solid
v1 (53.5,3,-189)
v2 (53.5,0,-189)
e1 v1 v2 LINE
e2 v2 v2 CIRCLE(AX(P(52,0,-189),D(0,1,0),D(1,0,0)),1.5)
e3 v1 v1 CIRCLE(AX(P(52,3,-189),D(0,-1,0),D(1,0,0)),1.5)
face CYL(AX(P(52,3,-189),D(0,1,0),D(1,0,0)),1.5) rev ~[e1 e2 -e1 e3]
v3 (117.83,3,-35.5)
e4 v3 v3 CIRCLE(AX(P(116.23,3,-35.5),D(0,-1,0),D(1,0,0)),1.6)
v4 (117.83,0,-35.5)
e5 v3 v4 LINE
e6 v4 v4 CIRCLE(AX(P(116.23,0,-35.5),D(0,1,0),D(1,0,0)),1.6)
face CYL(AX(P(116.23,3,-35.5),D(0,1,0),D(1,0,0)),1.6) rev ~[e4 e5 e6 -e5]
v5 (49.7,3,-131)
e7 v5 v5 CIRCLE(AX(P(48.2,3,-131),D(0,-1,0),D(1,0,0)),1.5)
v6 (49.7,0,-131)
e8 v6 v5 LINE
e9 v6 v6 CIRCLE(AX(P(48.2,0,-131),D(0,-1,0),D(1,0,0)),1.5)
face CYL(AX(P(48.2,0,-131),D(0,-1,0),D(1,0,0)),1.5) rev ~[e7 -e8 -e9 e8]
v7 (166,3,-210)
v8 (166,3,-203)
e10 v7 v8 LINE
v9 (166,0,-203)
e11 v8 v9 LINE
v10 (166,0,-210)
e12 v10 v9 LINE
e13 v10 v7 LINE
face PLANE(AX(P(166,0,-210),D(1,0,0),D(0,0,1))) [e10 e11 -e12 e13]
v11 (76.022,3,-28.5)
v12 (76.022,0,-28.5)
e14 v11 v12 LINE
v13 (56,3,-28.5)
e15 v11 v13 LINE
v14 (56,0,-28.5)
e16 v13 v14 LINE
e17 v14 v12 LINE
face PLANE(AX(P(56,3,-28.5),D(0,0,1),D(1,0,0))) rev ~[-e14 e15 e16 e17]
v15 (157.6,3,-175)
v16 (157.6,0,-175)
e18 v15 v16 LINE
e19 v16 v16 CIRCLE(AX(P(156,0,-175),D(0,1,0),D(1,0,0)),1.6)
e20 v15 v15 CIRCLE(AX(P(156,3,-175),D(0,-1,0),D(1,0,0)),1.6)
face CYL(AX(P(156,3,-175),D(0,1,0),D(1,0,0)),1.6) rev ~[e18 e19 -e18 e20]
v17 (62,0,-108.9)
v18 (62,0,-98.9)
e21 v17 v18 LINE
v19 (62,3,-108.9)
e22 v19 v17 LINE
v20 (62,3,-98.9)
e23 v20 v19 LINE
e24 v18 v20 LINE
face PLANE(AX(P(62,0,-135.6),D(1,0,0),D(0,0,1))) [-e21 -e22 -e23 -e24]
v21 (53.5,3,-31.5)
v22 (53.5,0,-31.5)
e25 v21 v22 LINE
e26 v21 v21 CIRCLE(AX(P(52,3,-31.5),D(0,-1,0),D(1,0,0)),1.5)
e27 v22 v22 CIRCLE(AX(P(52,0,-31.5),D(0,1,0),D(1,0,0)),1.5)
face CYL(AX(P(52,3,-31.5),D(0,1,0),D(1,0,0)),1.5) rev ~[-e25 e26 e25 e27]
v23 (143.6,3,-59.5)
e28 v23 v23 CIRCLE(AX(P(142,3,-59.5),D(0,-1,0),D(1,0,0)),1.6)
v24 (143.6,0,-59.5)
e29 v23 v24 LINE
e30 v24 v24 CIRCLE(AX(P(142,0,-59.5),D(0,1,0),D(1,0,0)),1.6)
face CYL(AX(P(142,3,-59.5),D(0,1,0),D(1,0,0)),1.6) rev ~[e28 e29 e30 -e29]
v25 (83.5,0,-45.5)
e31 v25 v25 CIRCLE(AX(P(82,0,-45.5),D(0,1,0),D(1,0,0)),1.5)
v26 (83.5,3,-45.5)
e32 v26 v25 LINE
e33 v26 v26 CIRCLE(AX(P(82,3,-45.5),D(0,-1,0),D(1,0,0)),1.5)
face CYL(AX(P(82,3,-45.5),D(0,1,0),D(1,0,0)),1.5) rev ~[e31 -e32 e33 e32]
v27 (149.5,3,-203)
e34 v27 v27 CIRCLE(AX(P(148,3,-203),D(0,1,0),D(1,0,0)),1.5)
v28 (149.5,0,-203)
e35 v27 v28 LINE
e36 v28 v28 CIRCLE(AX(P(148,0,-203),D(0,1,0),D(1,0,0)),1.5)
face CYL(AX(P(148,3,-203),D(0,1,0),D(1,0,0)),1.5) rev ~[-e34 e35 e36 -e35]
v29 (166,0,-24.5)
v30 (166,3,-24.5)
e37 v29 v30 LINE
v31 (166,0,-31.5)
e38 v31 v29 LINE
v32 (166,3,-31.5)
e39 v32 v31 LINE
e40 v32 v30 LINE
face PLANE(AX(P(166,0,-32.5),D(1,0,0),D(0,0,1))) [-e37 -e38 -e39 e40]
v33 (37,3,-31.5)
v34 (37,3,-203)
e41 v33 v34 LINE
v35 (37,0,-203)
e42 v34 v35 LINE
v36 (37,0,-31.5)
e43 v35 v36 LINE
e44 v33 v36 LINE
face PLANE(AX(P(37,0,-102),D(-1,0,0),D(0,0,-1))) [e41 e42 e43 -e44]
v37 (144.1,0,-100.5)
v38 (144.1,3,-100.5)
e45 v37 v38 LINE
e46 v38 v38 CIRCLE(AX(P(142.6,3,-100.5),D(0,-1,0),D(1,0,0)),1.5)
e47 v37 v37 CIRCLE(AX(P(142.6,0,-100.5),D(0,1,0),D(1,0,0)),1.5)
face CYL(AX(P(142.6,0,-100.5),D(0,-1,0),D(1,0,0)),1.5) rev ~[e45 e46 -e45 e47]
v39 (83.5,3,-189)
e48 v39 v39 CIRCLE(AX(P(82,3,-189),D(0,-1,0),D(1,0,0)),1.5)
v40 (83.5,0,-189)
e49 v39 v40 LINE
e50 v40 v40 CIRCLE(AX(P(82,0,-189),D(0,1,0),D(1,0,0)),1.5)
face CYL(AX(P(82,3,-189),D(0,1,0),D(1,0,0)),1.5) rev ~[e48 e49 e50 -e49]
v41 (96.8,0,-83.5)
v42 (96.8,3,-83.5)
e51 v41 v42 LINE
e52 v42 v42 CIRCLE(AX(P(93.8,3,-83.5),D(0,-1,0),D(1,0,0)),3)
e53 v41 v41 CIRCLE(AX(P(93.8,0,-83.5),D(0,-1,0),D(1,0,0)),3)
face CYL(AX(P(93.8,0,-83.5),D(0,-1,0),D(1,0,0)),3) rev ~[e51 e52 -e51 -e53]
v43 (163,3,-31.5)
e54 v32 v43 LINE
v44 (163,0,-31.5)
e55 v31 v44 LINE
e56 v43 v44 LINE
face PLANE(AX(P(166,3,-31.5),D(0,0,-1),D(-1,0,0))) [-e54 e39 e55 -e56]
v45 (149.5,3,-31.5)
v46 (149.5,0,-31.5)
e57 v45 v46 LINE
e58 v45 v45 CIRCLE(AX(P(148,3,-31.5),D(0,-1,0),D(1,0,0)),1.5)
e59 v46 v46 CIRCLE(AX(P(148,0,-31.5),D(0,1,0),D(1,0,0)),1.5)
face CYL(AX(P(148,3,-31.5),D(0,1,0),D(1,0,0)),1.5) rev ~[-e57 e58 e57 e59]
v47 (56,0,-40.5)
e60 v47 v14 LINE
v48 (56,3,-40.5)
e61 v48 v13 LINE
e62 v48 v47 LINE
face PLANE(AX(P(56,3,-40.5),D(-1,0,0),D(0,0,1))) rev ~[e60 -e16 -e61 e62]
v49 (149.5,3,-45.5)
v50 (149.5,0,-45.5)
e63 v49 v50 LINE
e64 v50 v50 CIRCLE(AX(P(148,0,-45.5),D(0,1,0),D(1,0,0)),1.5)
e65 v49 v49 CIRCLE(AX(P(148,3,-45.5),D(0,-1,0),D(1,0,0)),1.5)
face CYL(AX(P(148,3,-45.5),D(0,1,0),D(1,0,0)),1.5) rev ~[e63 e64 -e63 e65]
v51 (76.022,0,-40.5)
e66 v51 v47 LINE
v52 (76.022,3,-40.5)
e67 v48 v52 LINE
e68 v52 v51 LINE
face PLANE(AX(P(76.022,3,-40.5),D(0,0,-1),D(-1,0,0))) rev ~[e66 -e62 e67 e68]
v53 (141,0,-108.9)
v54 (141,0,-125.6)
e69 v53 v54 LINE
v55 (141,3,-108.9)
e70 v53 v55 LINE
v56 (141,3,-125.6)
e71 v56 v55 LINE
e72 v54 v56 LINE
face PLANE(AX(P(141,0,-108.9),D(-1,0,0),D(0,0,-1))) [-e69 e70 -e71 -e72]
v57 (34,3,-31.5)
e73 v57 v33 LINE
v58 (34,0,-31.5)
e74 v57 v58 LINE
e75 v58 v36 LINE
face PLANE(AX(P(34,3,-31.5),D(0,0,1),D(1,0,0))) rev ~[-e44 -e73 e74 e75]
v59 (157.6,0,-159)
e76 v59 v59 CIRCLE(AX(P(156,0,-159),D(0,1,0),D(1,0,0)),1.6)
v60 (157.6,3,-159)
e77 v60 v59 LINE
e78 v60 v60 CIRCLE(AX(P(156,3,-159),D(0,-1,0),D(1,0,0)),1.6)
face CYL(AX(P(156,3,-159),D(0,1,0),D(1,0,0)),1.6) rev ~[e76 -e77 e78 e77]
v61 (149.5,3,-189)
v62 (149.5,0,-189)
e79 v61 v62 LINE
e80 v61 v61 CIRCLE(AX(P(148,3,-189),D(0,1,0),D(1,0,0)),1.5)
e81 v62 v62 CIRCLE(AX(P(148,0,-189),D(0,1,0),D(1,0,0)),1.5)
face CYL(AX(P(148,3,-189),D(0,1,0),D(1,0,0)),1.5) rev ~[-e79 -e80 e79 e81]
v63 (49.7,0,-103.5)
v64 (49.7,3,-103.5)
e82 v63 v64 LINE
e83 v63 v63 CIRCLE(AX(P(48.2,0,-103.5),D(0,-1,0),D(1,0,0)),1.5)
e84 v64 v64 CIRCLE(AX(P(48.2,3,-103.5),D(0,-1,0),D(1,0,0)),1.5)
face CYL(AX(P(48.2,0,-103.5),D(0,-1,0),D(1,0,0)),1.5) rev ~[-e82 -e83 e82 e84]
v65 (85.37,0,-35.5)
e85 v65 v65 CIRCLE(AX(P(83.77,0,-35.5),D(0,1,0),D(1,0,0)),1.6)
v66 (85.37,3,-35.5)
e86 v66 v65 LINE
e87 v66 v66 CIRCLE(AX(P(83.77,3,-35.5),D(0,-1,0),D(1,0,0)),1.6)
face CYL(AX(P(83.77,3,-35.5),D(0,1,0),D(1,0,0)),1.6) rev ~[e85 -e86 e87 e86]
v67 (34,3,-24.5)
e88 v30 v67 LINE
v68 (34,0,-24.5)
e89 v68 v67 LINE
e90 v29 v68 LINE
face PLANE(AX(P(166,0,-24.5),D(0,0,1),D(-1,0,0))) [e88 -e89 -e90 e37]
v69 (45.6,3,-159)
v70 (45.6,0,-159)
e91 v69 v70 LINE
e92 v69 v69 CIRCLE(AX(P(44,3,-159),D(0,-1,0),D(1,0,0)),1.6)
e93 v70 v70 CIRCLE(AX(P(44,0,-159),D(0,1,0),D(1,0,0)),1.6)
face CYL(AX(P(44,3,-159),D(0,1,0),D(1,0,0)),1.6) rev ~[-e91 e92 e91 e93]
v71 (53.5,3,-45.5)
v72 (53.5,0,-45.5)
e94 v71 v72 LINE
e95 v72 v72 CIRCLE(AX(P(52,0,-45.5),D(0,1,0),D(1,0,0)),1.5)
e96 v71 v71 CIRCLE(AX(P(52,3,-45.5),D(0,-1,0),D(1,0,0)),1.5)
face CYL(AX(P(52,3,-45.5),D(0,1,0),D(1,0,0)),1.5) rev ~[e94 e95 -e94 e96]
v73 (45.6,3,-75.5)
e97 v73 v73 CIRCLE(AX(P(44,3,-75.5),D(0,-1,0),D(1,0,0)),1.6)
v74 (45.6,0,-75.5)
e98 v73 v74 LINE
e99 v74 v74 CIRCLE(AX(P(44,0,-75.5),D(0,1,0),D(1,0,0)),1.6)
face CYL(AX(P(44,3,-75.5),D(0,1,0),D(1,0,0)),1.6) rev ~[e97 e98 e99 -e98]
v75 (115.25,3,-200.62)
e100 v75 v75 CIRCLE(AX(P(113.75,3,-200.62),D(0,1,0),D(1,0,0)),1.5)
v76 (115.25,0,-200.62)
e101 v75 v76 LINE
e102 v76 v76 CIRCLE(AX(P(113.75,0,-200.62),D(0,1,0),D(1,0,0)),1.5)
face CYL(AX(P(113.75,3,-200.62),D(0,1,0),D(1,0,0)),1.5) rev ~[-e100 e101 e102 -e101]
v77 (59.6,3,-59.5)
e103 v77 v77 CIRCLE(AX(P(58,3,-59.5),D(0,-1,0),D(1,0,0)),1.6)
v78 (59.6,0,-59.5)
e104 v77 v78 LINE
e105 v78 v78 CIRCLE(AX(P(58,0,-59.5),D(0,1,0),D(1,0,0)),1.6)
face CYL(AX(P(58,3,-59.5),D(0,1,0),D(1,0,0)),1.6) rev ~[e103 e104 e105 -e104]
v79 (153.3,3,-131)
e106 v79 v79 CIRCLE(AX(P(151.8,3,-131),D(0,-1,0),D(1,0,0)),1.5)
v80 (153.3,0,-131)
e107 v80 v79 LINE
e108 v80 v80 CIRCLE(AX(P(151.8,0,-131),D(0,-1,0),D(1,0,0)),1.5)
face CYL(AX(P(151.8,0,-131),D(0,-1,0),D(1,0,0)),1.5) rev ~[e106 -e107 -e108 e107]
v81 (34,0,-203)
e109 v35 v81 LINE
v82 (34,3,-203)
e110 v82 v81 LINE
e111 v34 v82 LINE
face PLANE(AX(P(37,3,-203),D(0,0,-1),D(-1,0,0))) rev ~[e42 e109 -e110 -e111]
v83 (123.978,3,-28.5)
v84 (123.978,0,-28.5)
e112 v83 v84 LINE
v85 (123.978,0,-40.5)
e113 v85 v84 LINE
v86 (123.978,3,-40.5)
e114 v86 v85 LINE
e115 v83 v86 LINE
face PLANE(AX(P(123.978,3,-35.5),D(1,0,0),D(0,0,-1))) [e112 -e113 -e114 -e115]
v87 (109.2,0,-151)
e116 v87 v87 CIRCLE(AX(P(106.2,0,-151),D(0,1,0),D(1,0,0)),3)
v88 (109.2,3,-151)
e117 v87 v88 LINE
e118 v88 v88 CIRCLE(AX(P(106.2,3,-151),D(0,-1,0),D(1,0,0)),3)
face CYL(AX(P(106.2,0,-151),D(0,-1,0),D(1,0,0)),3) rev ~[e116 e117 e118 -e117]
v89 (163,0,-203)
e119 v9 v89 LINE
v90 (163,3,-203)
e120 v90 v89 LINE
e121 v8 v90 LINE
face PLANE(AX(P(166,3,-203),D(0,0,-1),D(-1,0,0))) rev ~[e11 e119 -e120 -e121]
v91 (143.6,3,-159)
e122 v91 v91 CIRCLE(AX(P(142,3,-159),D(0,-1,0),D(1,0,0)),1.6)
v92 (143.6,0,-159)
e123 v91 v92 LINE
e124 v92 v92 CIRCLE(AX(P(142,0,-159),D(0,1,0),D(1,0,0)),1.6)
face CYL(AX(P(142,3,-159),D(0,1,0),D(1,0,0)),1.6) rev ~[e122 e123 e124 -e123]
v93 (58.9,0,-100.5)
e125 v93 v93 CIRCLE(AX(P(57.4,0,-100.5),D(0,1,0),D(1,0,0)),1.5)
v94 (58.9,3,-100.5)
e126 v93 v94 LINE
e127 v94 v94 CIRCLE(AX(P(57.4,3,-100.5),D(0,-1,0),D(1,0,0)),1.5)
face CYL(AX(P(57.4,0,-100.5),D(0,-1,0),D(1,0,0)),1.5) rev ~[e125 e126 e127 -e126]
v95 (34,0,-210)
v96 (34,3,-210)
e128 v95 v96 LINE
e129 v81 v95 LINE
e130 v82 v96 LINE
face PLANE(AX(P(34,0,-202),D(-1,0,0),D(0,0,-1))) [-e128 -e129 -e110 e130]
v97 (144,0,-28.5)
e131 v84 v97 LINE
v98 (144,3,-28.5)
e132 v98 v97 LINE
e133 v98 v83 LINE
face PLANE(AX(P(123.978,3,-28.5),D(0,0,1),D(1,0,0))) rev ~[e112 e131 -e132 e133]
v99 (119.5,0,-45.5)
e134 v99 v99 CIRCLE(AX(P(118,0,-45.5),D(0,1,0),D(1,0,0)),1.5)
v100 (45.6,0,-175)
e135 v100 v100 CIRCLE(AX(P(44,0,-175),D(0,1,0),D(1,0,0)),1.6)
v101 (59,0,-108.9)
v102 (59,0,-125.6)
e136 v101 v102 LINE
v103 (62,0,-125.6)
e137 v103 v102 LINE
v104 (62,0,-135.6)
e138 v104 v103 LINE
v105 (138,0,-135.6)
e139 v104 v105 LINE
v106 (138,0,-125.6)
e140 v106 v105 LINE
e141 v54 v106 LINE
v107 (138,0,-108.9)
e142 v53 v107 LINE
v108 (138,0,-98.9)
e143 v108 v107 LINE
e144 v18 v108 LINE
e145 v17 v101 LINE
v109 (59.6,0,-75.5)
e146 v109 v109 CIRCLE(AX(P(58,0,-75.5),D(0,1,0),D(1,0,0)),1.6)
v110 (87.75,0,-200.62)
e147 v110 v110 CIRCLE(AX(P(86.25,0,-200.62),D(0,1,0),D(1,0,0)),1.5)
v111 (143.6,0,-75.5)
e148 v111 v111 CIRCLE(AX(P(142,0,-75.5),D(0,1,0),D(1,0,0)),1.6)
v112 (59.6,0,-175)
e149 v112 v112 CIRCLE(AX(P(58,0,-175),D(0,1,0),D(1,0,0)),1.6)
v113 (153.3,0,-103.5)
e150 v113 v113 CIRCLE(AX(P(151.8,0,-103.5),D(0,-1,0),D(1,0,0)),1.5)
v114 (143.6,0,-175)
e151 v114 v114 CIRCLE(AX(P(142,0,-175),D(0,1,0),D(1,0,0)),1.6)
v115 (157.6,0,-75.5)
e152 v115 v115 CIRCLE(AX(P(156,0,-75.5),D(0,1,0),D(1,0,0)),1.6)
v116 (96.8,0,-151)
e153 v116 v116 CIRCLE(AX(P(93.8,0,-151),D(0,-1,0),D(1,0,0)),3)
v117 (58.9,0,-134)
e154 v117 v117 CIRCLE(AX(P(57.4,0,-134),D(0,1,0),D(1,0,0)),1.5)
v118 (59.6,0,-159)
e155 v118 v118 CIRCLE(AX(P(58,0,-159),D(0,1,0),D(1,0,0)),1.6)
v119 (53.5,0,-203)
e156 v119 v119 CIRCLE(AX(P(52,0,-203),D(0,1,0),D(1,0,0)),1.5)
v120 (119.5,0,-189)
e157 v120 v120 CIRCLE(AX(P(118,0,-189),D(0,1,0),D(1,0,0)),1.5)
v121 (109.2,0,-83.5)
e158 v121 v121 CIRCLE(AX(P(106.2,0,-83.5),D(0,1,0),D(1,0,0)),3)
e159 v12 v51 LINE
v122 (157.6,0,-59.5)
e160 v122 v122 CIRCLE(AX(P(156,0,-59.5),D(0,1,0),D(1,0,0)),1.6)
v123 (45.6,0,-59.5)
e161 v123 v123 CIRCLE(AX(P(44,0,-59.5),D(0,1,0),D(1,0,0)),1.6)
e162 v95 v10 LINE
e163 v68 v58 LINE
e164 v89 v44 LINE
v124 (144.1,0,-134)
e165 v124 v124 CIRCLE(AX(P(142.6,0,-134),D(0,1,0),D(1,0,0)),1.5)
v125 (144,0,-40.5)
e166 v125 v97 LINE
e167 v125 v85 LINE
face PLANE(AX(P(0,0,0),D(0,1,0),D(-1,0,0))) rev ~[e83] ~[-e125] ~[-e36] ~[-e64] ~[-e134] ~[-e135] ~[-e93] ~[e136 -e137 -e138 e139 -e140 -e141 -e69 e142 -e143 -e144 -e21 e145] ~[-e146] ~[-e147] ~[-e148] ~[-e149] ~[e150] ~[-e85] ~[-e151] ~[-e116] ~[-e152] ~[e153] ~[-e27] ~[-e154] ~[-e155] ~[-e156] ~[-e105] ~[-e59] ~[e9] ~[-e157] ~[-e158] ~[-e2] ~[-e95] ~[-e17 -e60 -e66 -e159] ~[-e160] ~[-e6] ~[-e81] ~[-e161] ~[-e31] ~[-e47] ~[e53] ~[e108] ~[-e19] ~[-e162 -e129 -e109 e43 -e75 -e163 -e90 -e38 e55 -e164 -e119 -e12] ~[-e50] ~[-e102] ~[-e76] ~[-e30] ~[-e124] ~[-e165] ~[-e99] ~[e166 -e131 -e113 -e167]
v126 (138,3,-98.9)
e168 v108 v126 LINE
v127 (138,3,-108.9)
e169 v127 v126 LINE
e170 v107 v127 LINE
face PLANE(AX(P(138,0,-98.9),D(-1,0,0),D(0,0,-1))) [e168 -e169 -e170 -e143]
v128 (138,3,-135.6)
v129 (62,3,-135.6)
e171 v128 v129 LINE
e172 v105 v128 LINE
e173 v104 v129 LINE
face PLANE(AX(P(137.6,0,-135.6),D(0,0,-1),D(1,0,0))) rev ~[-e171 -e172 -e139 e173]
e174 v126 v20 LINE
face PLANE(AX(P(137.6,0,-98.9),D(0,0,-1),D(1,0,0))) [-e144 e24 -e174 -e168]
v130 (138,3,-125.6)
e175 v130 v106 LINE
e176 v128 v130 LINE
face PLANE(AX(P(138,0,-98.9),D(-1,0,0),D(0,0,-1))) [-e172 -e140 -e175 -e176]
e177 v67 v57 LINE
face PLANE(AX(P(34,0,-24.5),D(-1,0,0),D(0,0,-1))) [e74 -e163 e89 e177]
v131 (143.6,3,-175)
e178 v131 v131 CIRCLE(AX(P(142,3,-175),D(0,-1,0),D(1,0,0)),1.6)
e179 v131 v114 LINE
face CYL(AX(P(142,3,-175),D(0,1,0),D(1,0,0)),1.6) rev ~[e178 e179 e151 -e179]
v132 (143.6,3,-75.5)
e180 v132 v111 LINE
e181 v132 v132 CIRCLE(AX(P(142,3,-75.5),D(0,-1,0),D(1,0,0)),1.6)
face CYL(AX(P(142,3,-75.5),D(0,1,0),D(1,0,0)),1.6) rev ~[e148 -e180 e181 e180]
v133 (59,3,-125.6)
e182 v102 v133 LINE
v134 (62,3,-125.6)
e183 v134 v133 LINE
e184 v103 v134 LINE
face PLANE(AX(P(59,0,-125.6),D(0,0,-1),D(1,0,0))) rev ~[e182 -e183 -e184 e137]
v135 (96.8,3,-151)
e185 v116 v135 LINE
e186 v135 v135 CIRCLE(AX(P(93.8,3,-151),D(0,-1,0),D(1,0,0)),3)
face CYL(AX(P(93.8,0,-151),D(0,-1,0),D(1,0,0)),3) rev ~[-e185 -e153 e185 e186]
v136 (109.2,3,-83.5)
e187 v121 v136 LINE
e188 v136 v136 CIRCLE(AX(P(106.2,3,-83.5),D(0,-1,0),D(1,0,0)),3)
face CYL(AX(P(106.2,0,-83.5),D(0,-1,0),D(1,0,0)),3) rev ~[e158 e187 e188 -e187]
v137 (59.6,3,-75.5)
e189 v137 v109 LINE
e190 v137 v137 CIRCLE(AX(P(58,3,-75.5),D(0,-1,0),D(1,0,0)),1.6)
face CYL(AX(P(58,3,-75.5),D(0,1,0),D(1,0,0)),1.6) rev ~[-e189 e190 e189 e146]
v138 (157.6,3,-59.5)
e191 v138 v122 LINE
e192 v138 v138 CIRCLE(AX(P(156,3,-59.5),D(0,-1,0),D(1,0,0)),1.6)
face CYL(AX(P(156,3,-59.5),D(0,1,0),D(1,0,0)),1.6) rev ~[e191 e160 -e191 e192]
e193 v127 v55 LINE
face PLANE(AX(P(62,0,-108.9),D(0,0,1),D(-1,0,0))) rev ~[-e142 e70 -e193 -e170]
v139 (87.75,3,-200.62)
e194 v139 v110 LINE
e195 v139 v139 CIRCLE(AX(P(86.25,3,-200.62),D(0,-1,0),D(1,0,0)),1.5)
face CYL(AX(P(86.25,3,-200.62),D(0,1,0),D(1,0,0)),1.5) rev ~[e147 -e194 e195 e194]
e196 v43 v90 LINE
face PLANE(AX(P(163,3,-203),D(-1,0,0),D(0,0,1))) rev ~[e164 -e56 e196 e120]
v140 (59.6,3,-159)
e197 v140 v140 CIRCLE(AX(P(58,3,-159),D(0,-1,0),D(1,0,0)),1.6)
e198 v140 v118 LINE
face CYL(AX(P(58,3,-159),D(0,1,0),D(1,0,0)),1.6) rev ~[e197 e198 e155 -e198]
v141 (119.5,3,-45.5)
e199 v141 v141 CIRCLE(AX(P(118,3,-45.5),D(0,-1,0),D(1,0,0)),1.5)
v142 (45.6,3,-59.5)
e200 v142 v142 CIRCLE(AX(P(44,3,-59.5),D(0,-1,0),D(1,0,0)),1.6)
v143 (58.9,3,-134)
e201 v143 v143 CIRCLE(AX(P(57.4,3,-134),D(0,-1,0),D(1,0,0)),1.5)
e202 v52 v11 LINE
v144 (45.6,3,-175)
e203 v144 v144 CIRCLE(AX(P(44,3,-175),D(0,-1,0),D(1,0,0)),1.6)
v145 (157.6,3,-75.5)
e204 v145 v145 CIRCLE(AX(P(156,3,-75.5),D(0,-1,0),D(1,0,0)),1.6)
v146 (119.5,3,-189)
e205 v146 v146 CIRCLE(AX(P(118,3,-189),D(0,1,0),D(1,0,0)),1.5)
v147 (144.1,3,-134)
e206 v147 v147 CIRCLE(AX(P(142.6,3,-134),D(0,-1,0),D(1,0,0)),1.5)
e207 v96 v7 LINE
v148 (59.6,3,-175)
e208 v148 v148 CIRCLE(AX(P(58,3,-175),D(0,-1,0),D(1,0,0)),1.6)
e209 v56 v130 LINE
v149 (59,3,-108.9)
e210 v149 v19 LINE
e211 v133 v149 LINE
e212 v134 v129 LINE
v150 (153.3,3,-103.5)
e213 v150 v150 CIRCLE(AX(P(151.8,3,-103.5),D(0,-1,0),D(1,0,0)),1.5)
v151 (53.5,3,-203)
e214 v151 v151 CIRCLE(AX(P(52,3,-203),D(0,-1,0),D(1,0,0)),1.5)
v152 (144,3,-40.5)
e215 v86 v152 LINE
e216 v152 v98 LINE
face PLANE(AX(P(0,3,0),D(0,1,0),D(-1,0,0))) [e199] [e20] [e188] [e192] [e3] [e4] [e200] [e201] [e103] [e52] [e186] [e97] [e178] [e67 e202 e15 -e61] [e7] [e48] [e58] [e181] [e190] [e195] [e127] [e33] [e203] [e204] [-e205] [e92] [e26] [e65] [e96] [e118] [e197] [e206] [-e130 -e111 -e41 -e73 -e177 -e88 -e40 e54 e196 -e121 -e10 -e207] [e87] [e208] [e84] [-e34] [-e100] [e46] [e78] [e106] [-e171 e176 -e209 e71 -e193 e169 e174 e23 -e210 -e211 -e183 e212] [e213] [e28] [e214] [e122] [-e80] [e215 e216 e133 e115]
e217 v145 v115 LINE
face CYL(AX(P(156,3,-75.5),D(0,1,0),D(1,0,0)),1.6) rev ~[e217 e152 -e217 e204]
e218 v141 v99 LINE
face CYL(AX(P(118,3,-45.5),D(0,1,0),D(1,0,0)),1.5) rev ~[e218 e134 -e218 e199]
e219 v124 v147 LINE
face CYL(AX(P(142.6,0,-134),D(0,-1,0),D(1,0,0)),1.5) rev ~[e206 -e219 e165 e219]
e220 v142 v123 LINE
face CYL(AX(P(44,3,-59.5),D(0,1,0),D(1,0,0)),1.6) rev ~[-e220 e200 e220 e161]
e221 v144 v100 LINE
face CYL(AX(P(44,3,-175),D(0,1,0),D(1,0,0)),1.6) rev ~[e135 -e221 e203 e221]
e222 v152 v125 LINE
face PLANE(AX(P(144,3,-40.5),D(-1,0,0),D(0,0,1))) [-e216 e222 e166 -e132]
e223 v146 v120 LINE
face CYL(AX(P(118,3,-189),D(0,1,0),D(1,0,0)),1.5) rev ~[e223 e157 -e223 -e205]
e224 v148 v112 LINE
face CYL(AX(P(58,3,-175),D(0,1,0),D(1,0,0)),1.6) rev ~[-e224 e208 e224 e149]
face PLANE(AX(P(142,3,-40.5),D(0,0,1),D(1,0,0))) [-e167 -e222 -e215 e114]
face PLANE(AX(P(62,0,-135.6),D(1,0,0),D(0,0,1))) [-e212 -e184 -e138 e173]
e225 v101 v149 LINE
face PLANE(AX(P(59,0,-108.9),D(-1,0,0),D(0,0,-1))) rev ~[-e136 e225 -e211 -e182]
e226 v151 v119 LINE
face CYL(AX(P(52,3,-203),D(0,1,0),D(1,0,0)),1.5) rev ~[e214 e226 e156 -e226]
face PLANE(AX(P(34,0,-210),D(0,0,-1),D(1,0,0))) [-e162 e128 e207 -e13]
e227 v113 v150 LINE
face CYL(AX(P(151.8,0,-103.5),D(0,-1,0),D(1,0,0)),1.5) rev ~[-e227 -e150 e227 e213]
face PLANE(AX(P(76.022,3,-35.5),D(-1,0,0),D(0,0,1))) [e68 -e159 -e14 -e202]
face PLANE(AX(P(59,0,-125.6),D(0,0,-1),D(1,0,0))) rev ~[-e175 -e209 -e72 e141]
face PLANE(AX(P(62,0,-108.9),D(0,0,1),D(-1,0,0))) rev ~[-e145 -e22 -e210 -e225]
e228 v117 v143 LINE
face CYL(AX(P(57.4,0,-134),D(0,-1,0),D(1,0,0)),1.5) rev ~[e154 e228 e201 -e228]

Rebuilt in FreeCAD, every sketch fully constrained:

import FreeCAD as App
import Part
import Sketcher

V = App.Vector
Q = App.Units.Quantity

doc = App.newDocument("Part")
params = doc.addObject("Spreadsheet::Sheet", "Params")
for row, (alias, value) in enumerate([
    ("sketch1_height", "8 mm"),
    ("sketch1_width", "3 mm"),
    ("sketch1_width2", "132 mm"),
    ("sketch1_height2", "169.5 mm"),
    ("pad1_length", "3 mm"),
    ("sketch2_diameter", "3.2 mm"),
    ("pocket1_length", "5 mm"),
    ("sketch3_diameter", "6 mm"),
    ("sketch3_width", "76 mm"),
    ("sketch3_height", "36.7 mm"),
    ("pocket2_length", "5 mm"),
    ("sketch4_diameter", "3 mm"),
    ("pocket3_length", "5 mm"),
    ("sketch5_width", "82 mm"),
    ("sketch5_height", "16.7 mm"),
    ("pocket4_length", "5 mm"),
    ("sketch6_width", "3 mm"),
    ("sketch6_height", "1 mm"),
    ("pocket5_length", "10 mm"),
    ("sketch7_diameter", "3 mm"),
    ("pocket6_length", "10 mm"),
    ("sketch8_diameter", "3.2 mm"),
    ("sketch8_height", "12 mm"),
    ("pocket7_length", "3 mm"),
    ("sketch9_width", "2 mm"),
    ("sketch9_height", "12 mm"),
    ("pocket8_length", "3 mm"),
    ("sketch10_diameter", "3 mm"),
    ("pocket9_length", "10 mm"),
], start=1):
    params.set(f"A{row}", alias)
    params.set(f"B{row}", "=" + value)
    params.setAlias(f"B{row}", alias)

body = doc.addObject("PartDesign::Body", "Body")

# Sketch on XZ plane
sketch1 = doc.addObject("Sketcher::SketchObject", "Sketch")
body.addObject(sketch1)
sketch1.AttachmentSupport = (doc.XZ_Plane, [""])
sketch1.MapMode = "FlatFace"
sketch1.addGeometry([
    Part.LineSegment(V(37, -32.5, 0), V(34, -32.5, 0)),  # 0
    Part.LineSegment(V(34, -32.5, 0), V(34, -24.5, 0)),  # 1
    Part.LineSegment(V(34, -24.5, 0), V(166, -24.5, 0)),  # 2
    Part.LineSegment(V(166, -24.5, 0), V(166, -32.5, 0)),  # 3
    Part.LineSegment(V(166, -32.5, 0), V(163, -32.5, 0)),  # 4
    Part.LineSegment(V(163, -32.5, 0), V(163, -202, 0)),  # 5
    Part.LineSegment(V(163, -202, 0), V(166, -202, 0)),  # 6
    Part.LineSegment(V(166, -202, 0), V(166, -210, 0)),  # 7
    Part.LineSegment(V(166, -210, 0), V(34, -210, 0)),  # 8
    Part.LineSegment(V(34, -210, 0), V(34, -202, 0)),  # 9
    Part.LineSegment(V(34, -202, 0), V(37, -202, 0)),  # 10
    Part.LineSegment(V(37, -202, 0), V(37, -32.5, 0)),  # 11
], False)
sketch1.addConstraint([
    Sketcher.Constraint("Coincident", 0, 2, 1, 1),
    Sketcher.Constraint("Coincident", 1, 2, 2, 1),
    Sketcher.Constraint("Coincident", 2, 2, 3, 1),
    Sketcher.Constraint("Coincident", 3, 2, 4, 1),
    Sketcher.Constraint("Coincident", 4, 2, 5, 1),
    Sketcher.Constraint("Coincident", 5, 2, 6, 1),
    Sketcher.Constraint("Coincident", 6, 2, 7, 1),
    Sketcher.Constraint("Coincident", 7, 2, 8, 1),
    Sketcher.Constraint("Coincident", 8, 2, 9, 1),
    Sketcher.Constraint("Coincident", 9, 2, 10, 1),
    Sketcher.Constraint("Coincident", 10, 2, 11, 1),
    Sketcher.Constraint("Coincident", 11, 2, 0, 1),
    Sketcher.Constraint("Horizontal", 0),
    Sketcher.Constraint("Vertical", 1),
    Sketcher.Constraint("Horizontal", 2),
    Sketcher.Constraint("Vertical", 3),
    Sketcher.Constraint("Horizontal", 4),
    Sketcher.Constraint("Vertical", 5),
    Sketcher.Constraint("Horizontal", 6),
    Sketcher.Constraint("Vertical", 7),
    Sketcher.Constraint("Horizontal", 8),
    Sketcher.Constraint("Vertical", 9),
    Sketcher.Constraint("Horizontal", 10),
    Sketcher.Constraint("Vertical", 11),
    Sketcher.Constraint("Horizontal", 0, 2, 3, 2),
    Sketcher.Constraint("Horizontal", 6, 2, 9, 2),
    Sketcher.Constraint("Vertical", 3, 2, 6, 2),
    Sketcher.Constraint("Vertical", 1, 2, 8, 2),
    Sketcher.Constraint("Equal", 0, 4),
    Sketcher.Constraint("Equal", 3, 7),
    Sketcher.Constraint("DistanceY", 1, 1, 1, 2, Q("8 mm")),
    Sketcher.Constraint("DistanceX", 0, 2, 0, 1, Q("3 mm")),
    Sketcher.Constraint("DistanceX", 2, 1, 2, 2, Q("132 mm")),
    Sketcher.Constraint("DistanceY", 5, 2, 5, 1, Q("169.5 mm")),
    Sketcher.Constraint("DistanceX", -1, 1, 0, 2, Q("34 mm")),
    Sketcher.Constraint("DistanceY", 5, 2, -1, 1, Q("202 mm")),
])
sketch1.setExpression("Constraints[30]", "Params.sketch1_height")
sketch1.setExpression("Constraints[31]", "Params.sketch1_width")
sketch1.setExpression("Constraints[32]", "Params.sketch1_width2")
sketch1.setExpression("Constraints[33]", "Params.sketch1_height2")
pad1 = doc.addObject("PartDesign::Pad", "Pad")
body.addObject(pad1)
pad1.Profile = sketch1
pad1.setExpression("Length", "Params.pad1_length")
pad1.Reversed = True

# Sketch on XZ plane
sketch2 = doc.addObject("Sketcher::SketchObject", "Sketch001")
body.addObject(sketch2)
sketch2.AttachmentSupport = (doc.XZ_Plane, [""])
sketch2.MapMode = "FlatFace"
sketch2.AttachmentOffset = App.Placement(V(0, 0, -3), App.Rotation())
sketch2.addGeometry([
    Part.Circle(V(44, -159, 0), V(0, 0, 1), 1.6),  # 0
    Part.Circle(V(58, -159, 0), V(0, 0, 1), 1.6),  # 1
    Part.Circle(V(44, -175, 0), V(0, 0, 1), 1.6),  # 2
    Part.Circle(V(58, -175, 0), V(0, 0, 1), 1.6),  # 3
    Part.Circle(V(142, -159, 0), V(0, 0, 1), 1.6),  # 4
    Part.Circle(V(156, -159, 0), V(0, 0, 1), 1.6),  # 5
    Part.Circle(V(142, -175, 0), V(0, 0, 1), 1.6),  # 6
    Part.Circle(V(156, -175, 0), V(0, 0, 1), 1.6),  # 7
    Part.Circle(V(142, -75.5, 0), V(0, 0, 1), 1.6),  # 8
    Part.Circle(V(156, -75.5, 0), V(0, 0, 1), 1.6),  # 9
    Part.Circle(V(142, -59.5, 0), V(0, 0, 1), 1.6),  # 10
    Part.Circle(V(156, -59.5, 0), V(0, 0, 1), 1.6),  # 11
    Part.Circle(V(44, -75.5, 0), V(0, 0, 1), 1.6),  # 12
    Part.Circle(V(58, -75.5, 0), V(0, 0, 1), 1.6),  # 13
    Part.Circle(V(44, -59.5, 0), V(0, 0, 1), 1.6),  # 14
    Part.Circle(V(58, -59.5, 0), V(0, 0, 1), 1.6),  # 15
], False)
sketch2.addConstraint([
    Sketcher.Constraint("Equal", 0, 1),
    Sketcher.Constraint("Equal", 1, 2),
    Sketcher.Constraint("Equal", 2, 3),
    Sketcher.Constraint("Equal", 3, 4),
    Sketcher.Constraint("Equal", 4, 5),
    Sketcher.Constraint("Equal", 5, 6),
    Sketcher.Constraint("Equal", 6, 7),
    Sketcher.Constraint("Equal", 7, 8),
    Sketcher.Constraint("Equal", 8, 9),
    Sketcher.Constraint("Equal", 9, 10),
    Sketcher.Constraint("Equal", 10, 11),
    Sketcher.Constraint("Equal", 11, 12),
    Sketcher.Constraint("Equal", 12, 13),
    Sketcher.Constraint("Equal", 13, 14),
    Sketcher.Constraint("Equal", 14, 15),
    Sketcher.Constraint("Horizontal", 0, 3, 1, 3),
    Sketcher.Constraint("Horizontal", 2, 3, 3, 3),
    Sketcher.Constraint("Horizontal", 1, 3, 4, 3),
    Sketcher.Constraint("Horizontal", 4, 3, 5, 3),
    Sketcher.Constraint("Horizontal", 3, 3, 6, 3),
    Sketcher.Constraint("Horizontal", 6, 3, 7, 3),
    Sketcher.Constraint("Horizontal", 8, 3, 9, 3),
    Sketcher.Constraint("Horizontal", 10, 3, 11, 3),
    Sketcher.Constraint("Horizontal", 9, 3, 12, 3),
    Sketcher.Constraint("Horizontal", 12, 3, 13, 3),
    Sketcher.Constraint("Horizontal", 11, 3, 14, 3),
    Sketcher.Constraint("Horizontal", 14, 3, 15, 3),
    Sketcher.Constraint("Vertical", 0, 3, 2, 3),
    Sketcher.Constraint("Vertical", 1, 3, 3, 3),
    Sketcher.Constraint("Vertical", 4, 3, 6, 3),
    Sketcher.Constraint("Vertical", 5, 3, 7, 3),
    Sketcher.Constraint("Vertical", 6, 3, 8, 3),
    Sketcher.Constraint("Vertical", 7, 3, 9, 3),
    Sketcher.Constraint("Vertical", 8, 3, 10, 3),
    Sketcher.Constraint("Vertical", 9, 3, 11, 3),
    Sketcher.Constraint("Vertical", 2, 3, 12, 3),
    Sketcher.Constraint("Vertical", 3, 3, 13, 3),
    Sketcher.Constraint("Vertical", 12, 3, 14, 3),
    Sketcher.Constraint("Vertical", 13, 3, 15, 3),
    Sketcher.Constraint("Diameter", 0, Q("3.2 mm")),
    Sketcher.Constraint("DistanceY", 2, 3, 0, 3, Q("16 mm")),
    Sketcher.Constraint("DistanceY", 8, 3, 10, 3, Q("16 mm")),
    Sketcher.Constraint("DistanceX", -1, 1, 0, 3, Q("44 mm")),
    Sketcher.Constraint("DistanceY", 0, 3, -1, 1, Q("159 mm")),
    Sketcher.Constraint("DistanceX", -1, 1, 1, 3, Q("58 mm")),
    Sketcher.Constraint("DistanceX", -1, 1, 4, 3, Q("142 mm")),
    Sketcher.Constraint("DistanceX", -1, 1, 5, 3, Q("156 mm")),
    Sketcher.Constraint("DistanceY", 8, 3, -1, 1, Q("75.5 mm")),
])
sketch2.setExpression("Constraints[39]", "Params.sketch2_diameter")
pocket1 = doc.addObject("PartDesign::Pocket", "Pocket")
body.addObject(pocket1)
pocket1.Profile = sketch2
pocket1.setExpression("Length", "Params.pocket1_length")
pocket1.Reversed = True

# Sketch on XZ plane
sketch3 = doc.addObject("Sketcher::SketchObject", "Sketch002")
body.addObject(sketch3)
sketch3.AttachmentSupport = (doc.XZ_Plane, [""])
sketch3.MapMode = "FlatFace"
sketch3.addGeometry([
    Part.Circle(V(106.2, -83.5, 0), V(0, 0, 1), 3),  # 0
    Part.Circle(V(93.8, -83.5, 0), V(0, 0, 1), 3),  # 1
    Part.Circle(V(93.8, -151, 0), V(0, 0, 1), 3),  # 2
    Part.Circle(V(106.2, -151, 0), V(0, 0, 1), 3),  # 3
    Part.LineSegment(V(138, -98.9, 0), V(62, -98.9, 0)),  # 4
    Part.LineSegment(V(62, -98.9, 0), V(62, -135.6, 0)),  # 5
    Part.LineSegment(V(62, -135.6, 0), V(138, -135.6, 0)),  # 6
    Part.LineSegment(V(138, -135.6, 0), V(138, -98.9, 0)),  # 7
], False)
sketch3.addConstraint([
    Sketcher.Constraint("Coincident", 4, 2, 5, 1),
    Sketcher.Constraint("Coincident", 5, 2, 6, 1),
    Sketcher.Constraint("Coincident", 6, 2, 7, 1),
    Sketcher.Constraint("Coincident", 7, 2, 4, 1),
    Sketcher.Constraint("Horizontal", 4),
    Sketcher.Constraint("Vertical", 5),
    Sketcher.Constraint("Horizontal", 6),
    Sketcher.Constraint("Vertical", 7),
    Sketcher.Constraint("Equal", 0, 1),
    Sketcher.Constraint("Equal", 1, 2),
    Sketcher.Constraint("Equal", 2, 3),
    Sketcher.Constraint("Horizontal", 0, 3, 1, 3),
    Sketcher.Constraint("Horizontal", 2, 3, 3, 3),
    Sketcher.Constraint("Vertical", 1, 3, 2, 3),
    Sketcher.Constraint("Vertical", 0, 3, 3, 3),
    Sketcher.Constraint("Diameter", 0, Q("6 mm")),
    Sketcher.Constraint("DistanceX", 4, 2, 4, 1, Q("76 mm")),
    Sketcher.Constraint("DistanceY", 5, 2, 5, 1, Q("36.7 mm")),
    Sketcher.Constraint("DistanceY", 2, 3, -1, 1, Q("151 mm")),
    Sketcher.Constraint("DistanceX", -1, 1, 4, 2, Q("62 mm")),
    Sketcher.Constraint("DistanceX", -1, 1, 0, 3, Q("106.2 mm")),
    Sketcher.Constraint("DistanceY", 0, 3, -1, 1, Q("83.5 mm")),
    Sketcher.Constraint("DistanceX", -1, 1, 1, 3, Q("93.8 mm")),
    Sketcher.Constraint("DistanceY", 4, 2, -1, 1, Q("98.9 mm")),
])
sketch3.setExpression("Constraints[15]", "Params.sketch3_diameter")
sketch3.setExpression("Constraints[16]", "Params.sketch3_width")
sketch3.setExpression("Constraints[17]", "Params.sketch3_height")
pocket2 = doc.addObject("PartDesign::Pocket", "Pocket001")
body.addObject(pocket2)
pocket2.Profile = sketch3
pocket2.setExpression("Length", "Params.pocket2_length")

# Sketch on XZ plane
sketch4 = doc.addObject("Sketcher::SketchObject", "Sketch003")
body.addObject(sketch4)
sketch4.AttachmentSupport = (doc.XZ_Plane, [""])
sketch4.MapMode = "FlatFace"
sketch4.addGeometry([
    Part.Circle(V(142.6, -100.5, 0), V(0, 0, 1), 1.5),
    Part.Circle(V(142.6, -134, 0), V(0, 0, 1), 1.5),
    Part.Circle(V(57.4, -134, 0), V(0, 0, 1), 1.5),
    Part.Circle(V(57.4, -100.5, 0), V(0, 0, 1), 1.5),
], False)
sketch4.addConstraint([
    Sketcher.Constraint("Equal", 0, 1),
    Sketcher.Constraint("Equal", 1, 2),
    Sketcher.Constraint("Equal", 2, 3),
    Sketcher.Constraint("Horizontal", 1, 3, 2, 3),
    Sketcher.Constraint("Horizontal", 0, 3, 3, 3),
    Sketcher.Constraint("Vertical", 0, 3, 1, 3),
    Sketcher.Constraint("Vertical", 2, 3, 3, 3),
    Sketcher.Constraint("Diameter", 0, Q("3 mm")),
    Sketcher.Constraint("DistanceY", 1, 3, -1, 1, Q("134 mm")),
    Sketcher.Constraint("DistanceX", -1, 1, 0, 3, Q("142.6 mm")),
    Sketcher.Constraint("DistanceY", 0, 3, -1, 1, Q("100.5 mm")),
    Sketcher.Constraint("DistanceX", -1, 1, 2, 3, Q("57.4 mm")),
])
sketch4.setExpression("Constraints[7]", "Params.sketch4_diameter")
pocket3 = doc.addObject("PartDesign::Pocket", "Pocket002")
body.addObject(pocket3)
pocket3.Profile = sketch4
pocket3.setExpression("Length", "Params.pocket3_length")

# Sketch on XZ plane
sketch5 = doc.addObject("Sketcher::SketchObject", "Sketch004")
body.addObject(sketch5)
sketch5.AttachmentSupport = (doc.XZ_Plane, [""])
sketch5.MapMode = "FlatFace"
sketch5.addGeometry([
    Part.LineSegment(V(59, -125.6, 0), V(141, -125.6, 0)),
    Part.LineSegment(V(141, -125.6, 0), V(141, -108.9, 0)),
    Part.LineSegment(V(141, -108.9, 0), V(59, -108.9, 0)),
    Part.LineSegment(V(59, -108.9, 0), V(59, -125.6, 0)),
], False)
sketch5.addConstraint([
    Sketcher.Constraint("Coincident", 0, 2, 1, 1),
    Sketcher.Constraint("Coincident", 1, 2, 2, 1),
    Sketcher.Constraint("Coincident", 2, 2, 3, 1),
    Sketcher.Constraint("Coincident", 3, 2, 0, 1),
    Sketcher.Constraint("Horizontal", 0),
    Sketcher.Constraint("Vertical", 1),
    Sketcher.Constraint("Horizontal", 2),
    Sketcher.Constraint("Vertical", 3),
    Sketcher.Constraint("DistanceX", 0, 1, 0, 2, Q("82 mm")),
    Sketcher.Constraint("DistanceY", 1, 1, 1, 2, Q("16.7 mm")),
    Sketcher.Constraint("DistanceX", -1, 1, 0, 2, Q("141 mm")),
    Sketcher.Constraint("DistanceY", 0, 2, -1, 1, Q("125.6 mm")),
])
sketch5.setExpression("Constraints[8]", "Params.sketch5_width")
sketch5.setExpression("Constraints[9]", "Params.sketch5_height")
pocket4 = doc.addObject("PartDesign::Pocket", "Pocket003")
body.addObject(pocket4)
pocket4.Profile = sketch5
pocket4.setExpression("Length", "Params.pocket4_length")

# Sketch on XZ plane
sketch6 = doc.addObject("Sketcher::SketchObject", "Sketch005")
body.addObject(sketch6)
sketch6.AttachmentSupport = (doc.XZ_Plane, [""])
sketch6.MapMode = "FlatFace"
sketch6.AttachmentOffset = App.Placement(V(0, 0, -3), App.Rotation())
sketch6.addGeometry([
    Part.LineSegment(V(37, -31.5, 0), V(37, -32.5, 0)),  # 0
    Part.LineSegment(V(37, -32.5, 0), V(34, -32.5, 0)),  # 1
    Part.LineSegment(V(34, -32.5, 0), V(34, -31.5, 0)),  # 2
    Part.LineSegment(V(34, -31.5, 0), V(37, -31.5, 0)),  # 3
    Part.LineSegment(V(34, -202, 0), V(37, -202, 0)),  # 4
    Part.LineSegment(V(37, -202, 0), V(37, -203, 0)),  # 5
    Part.LineSegment(V(37, -203, 0), V(34, -203, 0)),  # 6
    Part.LineSegment(V(34, -203, 0), V(34, -202, 0)),  # 7
    Part.LineSegment(V(163, -203, 0), V(163, -202, 0)),  # 8
    Part.LineSegment(V(163, -202, 0), V(166, -202, 0)),  # 9
    Part.LineSegment(V(166, -202, 0), V(166, -203, 0)),  # 10
    Part.LineSegment(V(166, -203, 0), V(163, -203, 0)),  # 11
    Part.LineSegment(V(166, -32.5, 0), V(163, -32.5, 0)),  # 12
    Part.LineSegment(V(163, -32.5, 0), V(163, -31.5, 0)),  # 13
    Part.LineSegment(V(163, -31.5, 0), V(166, -31.5, 0)),  # 14
    Part.LineSegment(V(166, -31.5, 0), V(166, -32.5, 0)),  # 15
], False)
sketch6.addConstraint([
    Sketcher.Constraint("Coincident", 0, 2, 1, 1),
    Sketcher.Constraint("Coincident", 1, 2, 2, 1),
    Sketcher.Constraint("Coincident", 2, 2, 3, 1),
    Sketcher.Constraint("Coincident", 3, 2, 0, 1),
    Sketcher.Constraint("Coincident", 4, 2, 5, 1),
    Sketcher.Constraint("Coincident", 5, 2, 6, 1),
    Sketcher.Constraint("Coincident", 6, 2, 7, 1),
    Sketcher.Constraint("Coincident", 7, 2, 4, 1),
    Sketcher.Constraint("Coincident", 8, 2, 9, 1),
    Sketcher.Constraint("Coincident", 9, 2, 10, 1),
    Sketcher.Constraint("Coincident", 10, 2, 11, 1),
    Sketcher.Constraint("Coincident", 11, 2, 8, 1),
    Sketcher.Constraint("Coincident", 12, 2, 13, 1),
    Sketcher.Constraint("Coincident", 13, 2, 14, 1),
    Sketcher.Constraint("Coincident", 14, 2, 15, 1),
    Sketcher.Constraint("Coincident", 15, 2, 12, 1),
    Sketcher.Constraint("Vertical", 0),
    Sketcher.Constraint("Horizontal", 1),
    Sketcher.Constraint("Vertical", 2),
    Sketcher.Constraint("Horizontal", 3),
    Sketcher.Constraint("Horizontal", 4),
    Sketcher.Constraint("Vertical", 5),
    Sketcher.Constraint("Horizontal", 6),
    Sketcher.Constraint("Vertical", 7),
    Sketcher.Constraint("Vertical", 8),
    Sketcher.Constraint("Horizontal", 9),
    Sketcher.Constraint("Vertical", 10),
    Sketcher.Constraint("Horizontal", 11),
    Sketcher.Constraint("Horizontal", 12),
    Sketcher.Constraint("Vertical", 13),
    Sketcher.Constraint("Horizontal", 14),
    Sketcher.Constraint("Vertical", 15),
    Sketcher.Constraint("Horizontal", 7, 2, 8, 2),
    Sketcher.Constraint("Horizontal", 6, 2, 10, 2),
    Sketcher.Constraint("Horizontal", 1, 2, 12, 2),
    Sketcher.Constraint("Horizontal", 3, 2, 13, 2),
    Sketcher.Constraint("Vertical", 3, 2, 4, 2),
    Sketcher.Constraint("Vertical", 2, 2, 6, 2),
    Sketcher.Constraint("Vertical", 11, 2, 12, 2),
    Sketcher.Constraint("Vertical", 10, 2, 14, 2),
    Sketcher.Constraint("Equal", 6, 9),
    Sketcher.Constraint("Equal", 2, 5),
    Sketcher.Constraint("DistanceX", 1, 2, 1, 1, Q("3 mm")),
    Sketcher.Constraint("DistanceY", 0, 2, 0, 1, Q("1 mm")),
    Sketcher.Constraint("DistanceX", -1, 1, 0, 2, Q("37 mm")),
    Sketcher.Constraint("DistanceY", 4, 2, -1, 1, Q("202 mm")),
    Sketcher.Constraint("DistanceX", -1, 1, 8, 2, Q("163 mm")),
    Sketcher.Constraint("DistanceY", 0, 2, -1, 1, Q("32.5 mm")),
])
sketch6.setExpression("Constraints[42]", "Params.sketch6_width")
sketch6.setExpression("Constraints[43]", "Params.sketch6_height")
pocket5 = doc.addObject("PartDesign::Pocket", "Pocket004")
body.addObject(pocket5)
pocket5.Profile = sketch6
pocket5.setExpression("Length", "Params.pocket5_length")
pocket5.Reversed = True

# Sketch on XZ plane
sketch7 = doc.addObject("Sketcher::SketchObject", "Sketch006")
body.addObject(sketch7)
sketch7.AttachmentSupport = (doc.XZ_Plane, [""])
sketch7.MapMode = "FlatFace"
sketch7.AttachmentOffset = App.Placement(V(0, 0, -3), App.Rotation())
sketch7.addGeometry([
    Part.Circle(V(52, -31.5, 0), V(0, 0, 1), 1.5),  # 0
    Part.Circle(V(148, -31.5, 0), V(0, 0, 1), 1.5),  # 1
    Part.Circle(V(52, -45.5, 0), V(0, 0, 1), 1.5),  # 2
    Part.Circle(V(148, -45.5, 0), V(0, 0, 1), 1.5),  # 3
    Part.Circle(V(82, -45.5, 0), V(0, 0, 1), 1.5),  # 4
    Part.Circle(V(118, -45.5, 0), V(0, 0, 1), 1.5),  # 5
    Part.Circle(V(52, -189, 0), V(0, 0, 1), 1.5),  # 6
    Part.Circle(V(148, -189, 0), V(0, 0, 1), 1.5),  # 7
    Part.Circle(V(52, -203, 0), V(0, 0, 1), 1.5),  # 8
    Part.Circle(V(148, -203, 0), V(0, 0, 1), 1.5),  # 9
    Part.Circle(V(82, -189, 0), V(0, 0, 1), 1.5),  # 10
    Part.Circle(V(118, -189, 0), V(0, 0, 1), 1.5),  # 11
    Part.Circle(V(113.75, -200.62, 0), V(0, 0, 1), 1.5),  # 12
    Part.Circle(V(86.25, -200.62, 0), V(0, 0, 1), 1.5),  # 13
], False)
sketch7.addConstraint([
    Sketcher.Constraint("Equal", 0, 1),
    Sketcher.Constraint("Equal", 1, 2),
    Sketcher.Constraint("Equal", 2, 3),
    Sketcher.Constraint("Equal", 3, 4),
    Sketcher.Constraint("Equal", 4, 5),
    Sketcher.Constraint("Equal", 5, 6),
    Sketcher.Constraint("Equal", 6, 7),
    Sketcher.Constraint("Equal", 7, 8),
    Sketcher.Constraint("Equal", 8, 9),
    Sketcher.Constraint("Equal", 9, 10),
    Sketcher.Constraint("Equal", 10, 11),
    Sketcher.Constraint("Equal", 11, 12),
    Sketcher.Constraint("Equal", 12, 13),
    Sketcher.Constraint("Horizontal", 0, 3, 1, 3),
    Sketcher.Constraint("Horizontal", 2, 3, 3, 3),
    Sketcher.Constraint("Horizontal", 3, 3, 4, 3),
    Sketcher.Constraint("Horizontal", 4, 3, 5, 3),
    Sketcher.Constraint("Horizontal", 6, 3, 7, 3),
    Sketcher.Constraint("Horizontal", 8, 3, 9, 3),
    Sketcher.Constraint("Horizontal", 7, 3, 10, 3),
    Sketcher.Constraint("Horizontal", 10, 3, 11, 3),
    Sketcher.Constraint("Horizontal", 12, 3, 13, 3),
    Sketcher.Constraint("Vertical", 0, 3, 2, 3),
    Sketcher.Constraint("Vertical", 1, 3, 3, 3),
    Sketcher.Constraint("Vertical", 2, 3, 6, 3),
    Sketcher.Constraint("Vertical", 3, 3, 7, 3),
    Sketcher.Constraint("Vertical", 6, 3, 8, 3),
    Sketcher.Constraint("Vertical", 7, 3, 9, 3),
    Sketcher.Constraint("Vertical", 4, 3, 10, 3),
    Sketcher.Constraint("Vertical", 5, 3, 11, 3),
    Sketcher.Constraint("Diameter", 0, Q("3 mm")),
    Sketcher.Constraint("DistanceY", 2, 3, 0, 3, Q("14 mm")),
    Sketcher.Constraint("DistanceX", 2, 3, 4, 3, Q("30 mm")),
    Sketcher.Constraint("DistanceX", 5, 3, 3, 3, Q("30 mm")),
    Sketcher.Constraint("DistanceY", 8, 3, 6, 3, Q("14 mm")),
    Sketcher.Constraint("DistanceX", -1, 1, 0, 3, Q("52 mm")),
    Sketcher.Constraint("DistanceX", -1, 1, 1, 3, Q("148 mm")),
    Sketcher.Constraint("DistanceY", 6, 3, -1, 1, Q("189 mm")),
    Sketcher.Constraint("DistanceY", 0, 3, -1, 1, Q("31.5 mm")),
    Sketcher.Constraint("DistanceX", 13, 3, 12, 3, Q("27.5 mm")),
    Sketcher.Constraint("DistanceX", -1, 1, 12, 3, Q("113.75 mm")),
    Sketcher.Constraint("DistanceY", 12, 3, -1, 1, Q("200.62 mm")),
])
sketch7.setExpression("Constraints[30]", "Params.sketch7_diameter")
pocket6 = doc.addObject("PartDesign::Pocket", "Pocket005")
body.addObject(pocket6)
pocket6.Profile = sketch7
pocket6.setExpression("Length", "Params.pocket6_length")
pocket6.Reversed = True

# Sketch on XZ plane
sketch8 = doc.addObject("Sketcher::SketchObject", "Sketch007")
body.addObject(sketch8)
sketch8.AttachmentSupport = (doc.XZ_Plane, [""])
sketch8.MapMode = "FlatFace"
sketch8.AttachmentOffset = App.Placement(V(0, 0, -3), App.Rotation())
sketch8.addGeometry([
    Part.LineSegment(V(76.022, -28.5, 0), V(76.022, -40.5, 0)),  # 0
    Part.LineSegment(V(76.022, -40.5, 0), V(58, -40.5, 0)),  # 1
    Part.LineSegment(V(58, -40.5, 0), V(58, -28.5, 0)),  # 2
    Part.LineSegment(V(58, -28.5, 0), V(76.022, -28.5, 0)),  # 3
    Part.Circle(V(83.77, -35.5, 0), V(0, 0, 1), 1.6),  # 4
    Part.LineSegment(V(123.978, -40.5, 0), V(123.978, -28.5, 0)),  # 5
    Part.LineSegment(V(123.978, -28.5, 0), V(142, -28.5, 0)),  # 6
    Part.LineSegment(V(142, -28.5, 0), V(142, -40.5, 0)),  # 7
    Part.LineSegment(V(142, -40.5, 0), V(123.978, -40.5, 0)),  # 8
    Part.Circle(V(116.23, -35.5, 0), V(0, 0, 1), 1.6),  # 9
], False)
sketch8.addConstraint([
    Sketcher.Constraint("Coincident", 0, 2, 1, 1),
    Sketcher.Constraint("Coincident", 1, 2, 2, 1),
    Sketcher.Constraint("Coincident", 2, 2, 3, 1),
    Sketcher.Constraint("Coincident", 3, 2, 0, 1),
    Sketcher.Constraint("Coincident", 5, 2, 6, 1),
    Sketcher.Constraint("Coincident", 6, 2, 7, 1),
    Sketcher.Constraint("Coincident", 7, 2, 8, 1),
    Sketcher.Constraint("Coincident", 8, 2, 5, 1),
    Sketcher.Constraint("Vertical", 0),
    Sketcher.Constraint("Horizontal", 1),
    Sketcher.Constraint("Vertical", 2),
    Sketcher.Constraint("Horizontal", 3),
    Sketcher.Constraint("Vertical", 5),
    Sketcher.Constraint("Horizontal", 6),
    Sketcher.Constraint("Vertical", 7),
    Sketcher.Constraint("Horizontal", 8),
    Sketcher.Constraint("Equal", 4, 9),
    Sketcher.Constraint("Horizontal", 4, 3, 9, 3),
    Sketcher.Constraint("Horizontal", 3, 2, 5, 2),
    Sketcher.Constraint("Horizontal", 1, 2, 7, 2),
    Sketcher.Constraint("Equal", 3, 6),
    Sketcher.Constraint("Diameter", 4, Q("3.2 mm")),
    Sketcher.Constraint("DistanceY", 0, 2, 0, 1, Q("12 mm")),
    Sketcher.Constraint("DistanceY", 0, 2, 4, 3, Q("5 mm")),
    Sketcher.Constraint("DistanceX", 4, 3, 9, 3, Q("32.46 mm")),
    Sketcher.Constraint("DistanceX", -1, 1, 1, 2, Q("58 mm")),
    Sketcher.Constraint("DistanceX", -1, 1, 6, 2, Q("142 mm")),
    Sketcher.Constraint("DistanceY", 4, 3, -1, 1, Q("35.5 mm")),
    Sketcher.Constraint("DistanceX", 1, 2, 1, 1, Q("18.022 mm")),
    Sketcher.Constraint("DistanceX", -1, 1, 4, 3, Q("83.77 mm")),
])
sketch8.setExpression("Constraints[21]", "Params.sketch8_diameter")
sketch8.setExpression("Constraints[22]", "Params.sketch8_height")
pocket7 = doc.addObject("PartDesign::Pocket", "Pocket006")
body.addObject(pocket7)
pocket7.Profile = sketch8
pocket7.setExpression("Length", "Params.pocket7_length")
pocket7.Reversed = True

# Sketch on XZ plane
sketch9 = doc.addObject("Sketcher::SketchObject", "Sketch008")
body.addObject(sketch9)
sketch9.AttachmentSupport = (doc.XZ_Plane, [""])
sketch9.MapMode = "FlatFace"
sketch9.AttachmentOffset = App.Placement(V(0, 0, -3), App.Rotation())
sketch9.addGeometry([
    Part.LineSegment(V(58, -28.5, 0), V(58, -40.5, 0)),  # 0
    Part.LineSegment(V(58, -40.5, 0), V(56, -40.5, 0)),  # 1
    Part.LineSegment(V(56, -40.5, 0), V(56, -28.5, 0)),  # 2
    Part.LineSegment(V(56, -28.5, 0), V(58, -28.5, 0)),  # 3
    Part.LineSegment(V(144, -40.5, 0), V(142, -40.5, 0)),  # 4
    Part.LineSegment(V(142, -40.5, 0), V(142, -28.5, 0)),  # 5
    Part.LineSegment(V(142, -28.5, 0), V(144, -28.5, 0)),  # 6
    Part.LineSegment(V(144, -28.5, 0), V(144, -40.5, 0)),  # 7
], False)
sketch9.addConstraint([
    Sketcher.Constraint("Coincident", 0, 2, 1, 1),
    Sketcher.Constraint("Coincident", 1, 2, 2, 1),
    Sketcher.Constraint("Coincident", 2, 2, 3, 1),
    Sketcher.Constraint("Coincident", 3, 2, 0, 1),
    Sketcher.Constraint("Coincident", 4, 2, 5, 1),
    Sketcher.Constraint("Coincident", 5, 2, 6, 1),
    Sketcher.Constraint("Coincident", 6, 2, 7, 1),
    Sketcher.Constraint("Coincident", 7, 2, 4, 1),
    Sketcher.Constraint("Vertical", 0),
    Sketcher.Constraint("Horizontal", 1),
    Sketcher.Constraint("Vertical", 2),
    Sketcher.Constraint("Horizontal", 3),
    Sketcher.Constraint("Horizontal", 4),
    Sketcher.Constraint("Vertical", 5),
    Sketcher.Constraint("Horizontal", 6),
    Sketcher.Constraint("Vertical", 7),
    Sketcher.Constraint("Horizontal", 1, 2, 4, 2),
    Sketcher.Constraint("Horizontal", 3, 2, 5, 2),
    Sketcher.Constraint("Equal", 3, 4),
    Sketcher.Constraint("DistanceX", 1, 2, 1, 1, Q("2 mm")),
    Sketcher.Constraint("DistanceY", 0, 2, 0, 1, Q("12 mm")),
    Sketcher.Constraint("DistanceX", -1, 1, 0, 2, Q("58 mm")),
    Sketcher.Constraint("DistanceX", -1, 1, 4, 2, Q("142 mm")),
    Sketcher.Constraint("DistanceY", 0, 2, -1, 1, Q("40.5 mm")),
])
sketch9.setExpression("Constraints[19]", "Params.sketch9_width")
sketch9.setExpression("Constraints[20]", "Params.sketch9_height")
pocket8 = doc.addObject("PartDesign::Pocket", "Pocket007")
body.addObject(pocket8)
pocket8.Profile = sketch9
pocket8.setExpression("Length", "Params.pocket8_length")
pocket8.Reversed = True

# Sketch on XZ plane
sketch10 = doc.addObject("Sketcher::SketchObject", "Sketch009")
body.addObject(sketch10)
sketch10.AttachmentSupport = (doc.XZ_Plane, [""])
sketch10.MapMode = "FlatFace"
sketch10.addGeometry([
    Part.Circle(V(48.2, -103.5, 0), V(0, 0, 1), 1.5),
    Part.Circle(V(48.2, -131, 0), V(0, 0, 1), 1.5),
    Part.Circle(V(151.8, -103.5, 0), V(0, 0, 1), 1.5),
    Part.Circle(V(151.8, -131, 0), V(0, 0, 1), 1.5),
], False)
sketch10.addConstraint([
    Sketcher.Constraint("Equal", 0, 1),
    Sketcher.Constraint("Equal", 1, 2),
    Sketcher.Constraint("Equal", 2, 3),
    Sketcher.Constraint("Horizontal", 0, 3, 2, 3),
    Sketcher.Constraint("Horizontal", 1, 3, 3, 3),
    Sketcher.Constraint("Vertical", 0, 3, 1, 3),
    Sketcher.Constraint("Vertical", 2, 3, 3, 3),
    Sketcher.Constraint("Diameter", 0, Q("3 mm")),
    Sketcher.Constraint("DistanceY", 1, 3, -1, 1, Q("131 mm")),
    Sketcher.Constraint("DistanceX", -1, 1, 0, 3, Q("48.2 mm")),
    Sketcher.Constraint("DistanceY", 0, 3, -1, 1, Q("103.5 mm")),
    Sketcher.Constraint("DistanceX", -1, 1, 2, 3, Q("151.8 mm")),
])
sketch10.setExpression("Constraints[7]", "Params.sketch10_diameter")
pocket9 = doc.addObject("PartDesign::Pocket", "Pocket008")
body.addObject(pocket9)
pocket9.Profile = sketch10
pocket9.setExpression("Length", "Params.pocket9_length")

doc.recompute()
